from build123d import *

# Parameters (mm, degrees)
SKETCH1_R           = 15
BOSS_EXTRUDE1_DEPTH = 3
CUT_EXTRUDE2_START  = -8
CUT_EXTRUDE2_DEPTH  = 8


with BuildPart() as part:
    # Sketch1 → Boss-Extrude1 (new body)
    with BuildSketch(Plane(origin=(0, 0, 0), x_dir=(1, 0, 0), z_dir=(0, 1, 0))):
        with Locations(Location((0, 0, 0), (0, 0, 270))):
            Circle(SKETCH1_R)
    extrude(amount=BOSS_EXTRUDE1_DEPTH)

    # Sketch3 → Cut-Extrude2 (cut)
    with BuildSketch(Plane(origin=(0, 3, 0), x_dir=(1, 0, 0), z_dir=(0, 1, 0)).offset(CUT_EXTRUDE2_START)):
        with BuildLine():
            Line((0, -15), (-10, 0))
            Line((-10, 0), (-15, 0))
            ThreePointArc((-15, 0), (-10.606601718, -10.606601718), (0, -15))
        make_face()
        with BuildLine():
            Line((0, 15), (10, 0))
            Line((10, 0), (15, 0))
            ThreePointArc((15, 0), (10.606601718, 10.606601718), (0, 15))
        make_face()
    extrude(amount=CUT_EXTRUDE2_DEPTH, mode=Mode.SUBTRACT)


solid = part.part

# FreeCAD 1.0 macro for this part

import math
import FreeCAD as App
import Part
import Sketcher
from FreeCAD import Vector

doc = App.newDocument("Part")
params = doc.addObject("Spreadsheet::Sheet", "Params")
for row, (alias, value) in enumerate([
    ("sketch1_diameter", "30 mm"),
    ("pad1_length", "3 mm"),
    ("sketch2_radius", "15 mm"),
    ("sketch2_width", "5 mm"),
    ("pocket1_length", "8 mm"),
], start=1):
    params.set(f"A{row}", alias)
    params.set(f"B{row}", "=" + value)
    params.setAlias(f"B{row}", alias)

body = doc.addObject("PartDesign::Body", "Body")

sketch1 = body.newObject("Sketcher::SketchObject", "Sketch")
sketch1.AttachmentSupport = (doc.getObject("XZ_Plane"), [""])
sketch1.MapMode = "FlatFace"
sketch1.addGeometry(Part.Circle(Vector(0, 0, 0), Vector(0, 0, 1), 15), False)
sketch1.addConstraint([
    Sketcher.Constraint("Coincident", 0, 3, -1, 1),
    Sketcher.Constraint("Diameter", 0, 30.0),
])
sketch1.setExpression("Constraints[1]", "Params.sketch1_diameter")
pad1 = body.newObject("PartDesign::Pad", "Pad")
pad1.Profile = sketch1
pad1.setExpression("Length", "Params.pad1_length")
pad1.Reversed = True

sketch2 = body.newObject("Sketcher::SketchObject", "Sketch001")
sketch2.AttachmentSupport = (doc.getObject("XZ_Plane"), [""])
sketch2.MapMode = "FlatFace"
sketch2.AttachmentOffset = App.Placement(Vector(0, 0, 5), App.Rotation())
sketch2.addGeometry([
    Part.LineSegment(Vector(0, 15, 0), Vector(-10, 0, 0)),
    Part.LineSegment(Vector(-10, 0, 0), Vector(-15, 0, 0)),
    Part.ArcOfCircle(Part.Circle(Vector(0, 0, 0), Vector(0, 0, 1), 15), math.radians(90), math.radians(180)),
    Part.LineSegment(Vector(0, -15, 0), Vector(10, 0, 0)),
    Part.LineSegment(Vector(10, 0, 0), Vector(15, 0, 0)),
    Part.ArcOfCircle(Part.Circle(Vector(0, 0, 0), Vector(0, 0, 1), 15), math.radians(-90), math.radians(0)),
], False)
sketch2.addConstraint([
    Sketcher.Constraint("Coincident", 0, 2, 1, 1),
    Sketcher.Constraint("Coincident", 1, 2, 2, 2),
    Sketcher.Constraint("Coincident", 2, 1, 0, 1),
    Sketcher.Constraint("Coincident", 3, 2, 4, 1),
    Sketcher.Constraint("Coincident", 4, 2, 5, 2),
    Sketcher.Constraint("Coincident", 5, 1, 3, 1),
    Sketcher.Constraint("Horizontal", 1),
    Sketcher.Constraint("Horizontal", 4),
    Sketcher.Constraint("Coincident", 2, 3, -1, 1),
    Sketcher.Constraint("Coincident", 5, 3, -1, 1),
    Sketcher.Constraint("Equal", 2, 5),
    Sketcher.Constraint("Symmetric", 0, 2, 3, 2, -1, 1),
    Sketcher.Constraint("PointOnObject", 0, 2, -1),
    Sketcher.Constraint("PointOnObject", 2, 1, -2),
    Sketcher.Constraint("PointOnObject", 5, 1, -2),
    Sketcher.Constraint("Radius", 2, 15.0),
    Sketcher.Constraint("DistanceX", 1, 2, 1, 1, 5.0),
])
sketch2.setExpression("Constraints[15]", "Params.sketch2_radius")
sketch2.setExpression("Constraints[16]", "Params.sketch2_width")
pocket1 = body.newObject("PartDesign::Pocket", "Pocket")
pocket1.Profile = sketch2
pocket1.setExpression("Length", "Params.pocket1_length")

doc.recompute()
